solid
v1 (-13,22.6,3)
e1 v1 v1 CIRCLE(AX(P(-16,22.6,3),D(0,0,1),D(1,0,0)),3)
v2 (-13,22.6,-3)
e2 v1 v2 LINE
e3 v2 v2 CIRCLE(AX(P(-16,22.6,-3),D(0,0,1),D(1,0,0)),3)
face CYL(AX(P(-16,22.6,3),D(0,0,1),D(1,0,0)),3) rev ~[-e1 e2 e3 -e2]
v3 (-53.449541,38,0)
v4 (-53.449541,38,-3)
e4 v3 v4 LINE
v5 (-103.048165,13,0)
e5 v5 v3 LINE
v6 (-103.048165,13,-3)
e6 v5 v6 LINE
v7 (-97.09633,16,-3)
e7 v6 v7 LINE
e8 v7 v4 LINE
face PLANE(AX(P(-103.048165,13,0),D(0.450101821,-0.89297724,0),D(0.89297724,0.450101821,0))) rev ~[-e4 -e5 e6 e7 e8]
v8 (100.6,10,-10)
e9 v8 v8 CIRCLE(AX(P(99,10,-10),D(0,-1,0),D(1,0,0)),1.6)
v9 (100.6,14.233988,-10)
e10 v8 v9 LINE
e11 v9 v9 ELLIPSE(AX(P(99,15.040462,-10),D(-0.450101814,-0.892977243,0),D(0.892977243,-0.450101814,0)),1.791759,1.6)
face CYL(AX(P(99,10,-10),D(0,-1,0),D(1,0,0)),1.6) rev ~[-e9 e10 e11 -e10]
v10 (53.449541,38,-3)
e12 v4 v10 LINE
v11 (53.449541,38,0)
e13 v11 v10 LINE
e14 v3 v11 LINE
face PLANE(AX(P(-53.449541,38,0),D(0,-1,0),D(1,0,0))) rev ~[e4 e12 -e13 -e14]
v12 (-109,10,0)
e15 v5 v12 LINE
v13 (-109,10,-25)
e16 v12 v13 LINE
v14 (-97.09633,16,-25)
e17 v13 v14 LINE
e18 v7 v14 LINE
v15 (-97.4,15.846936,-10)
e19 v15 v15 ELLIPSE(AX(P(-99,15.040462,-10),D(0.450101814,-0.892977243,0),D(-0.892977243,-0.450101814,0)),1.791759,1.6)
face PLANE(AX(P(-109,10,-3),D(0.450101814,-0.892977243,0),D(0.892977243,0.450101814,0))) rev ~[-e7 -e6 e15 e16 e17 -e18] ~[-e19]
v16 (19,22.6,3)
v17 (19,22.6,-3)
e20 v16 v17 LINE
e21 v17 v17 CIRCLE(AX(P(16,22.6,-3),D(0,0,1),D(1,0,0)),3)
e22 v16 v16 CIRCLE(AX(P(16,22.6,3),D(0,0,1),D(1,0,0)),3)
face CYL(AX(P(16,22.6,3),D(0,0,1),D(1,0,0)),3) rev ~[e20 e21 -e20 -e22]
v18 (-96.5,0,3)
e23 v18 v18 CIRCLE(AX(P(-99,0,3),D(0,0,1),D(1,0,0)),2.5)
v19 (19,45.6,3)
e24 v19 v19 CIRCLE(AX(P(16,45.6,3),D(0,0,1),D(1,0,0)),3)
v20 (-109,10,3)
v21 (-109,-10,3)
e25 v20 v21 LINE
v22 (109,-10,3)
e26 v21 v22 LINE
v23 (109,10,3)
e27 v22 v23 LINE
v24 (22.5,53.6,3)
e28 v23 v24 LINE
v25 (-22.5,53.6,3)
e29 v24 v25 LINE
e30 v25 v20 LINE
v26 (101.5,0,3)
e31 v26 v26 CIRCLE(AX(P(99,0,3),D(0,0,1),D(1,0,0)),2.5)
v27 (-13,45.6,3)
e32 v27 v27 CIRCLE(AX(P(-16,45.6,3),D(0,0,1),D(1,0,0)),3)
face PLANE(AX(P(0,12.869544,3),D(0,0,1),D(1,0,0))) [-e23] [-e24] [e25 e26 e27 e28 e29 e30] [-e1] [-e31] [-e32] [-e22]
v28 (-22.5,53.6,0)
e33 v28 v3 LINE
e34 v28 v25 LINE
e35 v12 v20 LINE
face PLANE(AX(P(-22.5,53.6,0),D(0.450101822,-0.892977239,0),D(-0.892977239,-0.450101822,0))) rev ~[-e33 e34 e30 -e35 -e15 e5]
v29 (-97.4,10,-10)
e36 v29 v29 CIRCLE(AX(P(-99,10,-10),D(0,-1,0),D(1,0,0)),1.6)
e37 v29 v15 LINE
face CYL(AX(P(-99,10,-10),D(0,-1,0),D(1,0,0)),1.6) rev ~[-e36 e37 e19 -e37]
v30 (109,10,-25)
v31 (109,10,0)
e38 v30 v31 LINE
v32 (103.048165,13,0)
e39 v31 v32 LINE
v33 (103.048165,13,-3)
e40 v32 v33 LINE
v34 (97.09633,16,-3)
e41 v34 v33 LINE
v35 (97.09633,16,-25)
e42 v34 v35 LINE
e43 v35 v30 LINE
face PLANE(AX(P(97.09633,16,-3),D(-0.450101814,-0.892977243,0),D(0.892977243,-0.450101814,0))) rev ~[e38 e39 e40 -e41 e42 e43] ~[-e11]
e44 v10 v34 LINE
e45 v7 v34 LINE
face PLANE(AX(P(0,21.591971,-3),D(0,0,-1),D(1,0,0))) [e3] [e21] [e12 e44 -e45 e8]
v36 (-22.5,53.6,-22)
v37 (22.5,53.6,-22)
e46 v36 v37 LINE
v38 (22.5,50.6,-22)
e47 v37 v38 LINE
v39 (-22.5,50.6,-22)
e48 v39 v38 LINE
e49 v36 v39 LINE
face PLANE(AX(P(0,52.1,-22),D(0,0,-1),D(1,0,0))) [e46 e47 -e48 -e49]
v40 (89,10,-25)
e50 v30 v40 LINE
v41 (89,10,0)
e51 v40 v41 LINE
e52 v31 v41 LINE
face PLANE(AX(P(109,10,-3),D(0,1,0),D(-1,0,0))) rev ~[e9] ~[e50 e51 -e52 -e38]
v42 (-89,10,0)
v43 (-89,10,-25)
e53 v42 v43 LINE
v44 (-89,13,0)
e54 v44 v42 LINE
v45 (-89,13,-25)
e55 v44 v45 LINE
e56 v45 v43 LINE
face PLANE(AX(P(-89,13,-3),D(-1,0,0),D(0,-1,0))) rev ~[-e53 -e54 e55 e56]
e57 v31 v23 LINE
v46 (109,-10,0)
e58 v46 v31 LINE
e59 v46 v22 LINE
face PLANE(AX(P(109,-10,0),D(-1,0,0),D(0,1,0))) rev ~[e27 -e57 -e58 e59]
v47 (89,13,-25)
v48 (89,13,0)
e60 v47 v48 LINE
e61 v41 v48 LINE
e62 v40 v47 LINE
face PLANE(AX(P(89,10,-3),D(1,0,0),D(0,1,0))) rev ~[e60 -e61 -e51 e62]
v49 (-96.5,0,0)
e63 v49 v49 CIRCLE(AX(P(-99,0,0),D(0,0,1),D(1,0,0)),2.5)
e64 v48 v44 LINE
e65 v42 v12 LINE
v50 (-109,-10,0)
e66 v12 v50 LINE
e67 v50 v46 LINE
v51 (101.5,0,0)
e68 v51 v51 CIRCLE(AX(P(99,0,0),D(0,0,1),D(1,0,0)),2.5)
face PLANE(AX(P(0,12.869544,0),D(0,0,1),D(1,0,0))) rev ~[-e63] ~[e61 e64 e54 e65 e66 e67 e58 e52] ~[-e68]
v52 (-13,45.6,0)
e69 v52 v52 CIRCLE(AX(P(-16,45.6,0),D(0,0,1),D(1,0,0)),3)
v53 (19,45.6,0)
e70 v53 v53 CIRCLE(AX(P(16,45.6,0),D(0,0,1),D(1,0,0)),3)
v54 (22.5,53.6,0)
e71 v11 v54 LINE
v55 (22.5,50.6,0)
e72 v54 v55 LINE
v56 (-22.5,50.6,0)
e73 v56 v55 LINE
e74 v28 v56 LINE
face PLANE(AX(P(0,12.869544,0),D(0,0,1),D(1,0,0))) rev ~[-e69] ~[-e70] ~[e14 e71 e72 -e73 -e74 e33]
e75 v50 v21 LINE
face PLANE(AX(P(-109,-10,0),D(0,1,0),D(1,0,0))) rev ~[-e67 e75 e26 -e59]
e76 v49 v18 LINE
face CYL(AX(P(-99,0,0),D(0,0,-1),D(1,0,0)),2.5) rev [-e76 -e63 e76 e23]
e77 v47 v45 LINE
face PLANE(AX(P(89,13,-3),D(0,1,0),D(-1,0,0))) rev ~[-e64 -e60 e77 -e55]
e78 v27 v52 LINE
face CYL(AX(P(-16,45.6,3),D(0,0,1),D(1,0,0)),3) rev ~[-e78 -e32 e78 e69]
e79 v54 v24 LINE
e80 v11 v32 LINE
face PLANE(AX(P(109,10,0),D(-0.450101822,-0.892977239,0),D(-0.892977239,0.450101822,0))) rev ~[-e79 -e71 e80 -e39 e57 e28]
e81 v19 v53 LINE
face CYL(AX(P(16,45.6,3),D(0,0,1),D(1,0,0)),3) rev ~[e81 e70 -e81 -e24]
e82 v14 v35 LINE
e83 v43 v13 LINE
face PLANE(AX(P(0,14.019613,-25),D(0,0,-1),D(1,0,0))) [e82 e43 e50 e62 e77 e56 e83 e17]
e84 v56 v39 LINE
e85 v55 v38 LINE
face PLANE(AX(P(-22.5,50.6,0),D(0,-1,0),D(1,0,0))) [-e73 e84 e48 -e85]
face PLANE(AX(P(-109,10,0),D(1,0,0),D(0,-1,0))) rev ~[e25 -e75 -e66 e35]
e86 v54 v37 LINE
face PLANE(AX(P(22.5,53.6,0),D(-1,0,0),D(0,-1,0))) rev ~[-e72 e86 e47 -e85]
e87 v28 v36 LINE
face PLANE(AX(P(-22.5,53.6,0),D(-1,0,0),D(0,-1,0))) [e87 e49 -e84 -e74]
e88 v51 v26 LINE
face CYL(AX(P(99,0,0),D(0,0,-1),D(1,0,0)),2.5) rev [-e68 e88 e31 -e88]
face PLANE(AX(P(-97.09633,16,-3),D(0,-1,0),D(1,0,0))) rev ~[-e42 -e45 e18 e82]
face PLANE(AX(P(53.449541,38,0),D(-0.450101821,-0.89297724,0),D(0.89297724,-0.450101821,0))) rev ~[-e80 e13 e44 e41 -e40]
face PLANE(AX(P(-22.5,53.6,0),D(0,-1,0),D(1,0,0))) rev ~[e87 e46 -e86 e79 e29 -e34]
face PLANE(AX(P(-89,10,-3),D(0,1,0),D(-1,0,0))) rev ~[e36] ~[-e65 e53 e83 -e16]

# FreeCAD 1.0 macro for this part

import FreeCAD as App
import Part
import Sketcher
from FreeCAD import Vector


def add_polygon(sketch, points):
    """Adds a closed chain of lines whose ends are joined by coincident constraints."""
    first, n = sketch.GeometryCount, len(points)
    for a, b in zip(points, points[1:] + points[:1]):
        sketch.addGeometry(Part.LineSegment(App.Vector(*a, 0), App.Vector(*b, 0)), False)
    for i in range(n):
        sketch.addConstraint(Sketcher.Constraint("Coincident", first + i, 2, first + (i + 1) % n, 1))

doc = App.newDocument("Part")
params = doc.addObject("Spreadsheet::Sheet", "Params")
for row, (alias, value) in enumerate([
    ("sketch1_diameter", "5 mm"),
    ("sketch1_width", "45 mm"),
    ("sketch1_width2", "218 mm"),
    ("sketch1_height", "20 mm"),
    ("pad1_length", "3 mm"),
    ("sketch2_width", "45 mm"),
    ("sketch2_height", "3 mm"),
    ("pad2_length", "22 mm"),
    ("sketch3_width", "178 mm"),
    ("sketch3_width2", "20 mm"),
    ("sketch3_height", "3 mm"),
    ("pad3_length", "3 mm"),
    ("sketch4_width", "178 mm"),
    ("sketch4_width2", "20 mm"),
    ("sketch4_height", "3 mm"),
    ("pad4_length", "22 mm"),
    ("sketch5_diameter", "3.2 mm"),
    ("pocket1_length", "6 mm"),
    ("sketch6_diameter", "6 mm"),
    ("pocket2_length", "25 mm"),
    ("sketch7_diameter", "6 mm"),
    ("pocket3_length", "30 mm"),
], start=1):
    params.set(f"A{row}", alias)
    params.set(f"B{row}", "=" + value)
    params.setAlias(f"B{row}", alias)

body = doc.addObject("PartDesign::Body", "Body")

# Sketch on XY plane
sketch1 = body.newObject("Sketcher::SketchObject", "Sketch")
sketch1.AttachmentSupport = (doc.getObject("XY_Plane"), [""])
sketch1.MapMode = "FlatFace"
add_polygon(sketch1, [(109, -10), (109, 10), (22.5, 53.6), (-22.5, 53.6), (-109, 10), (-109, -10)])  # lines 0-5
sketch1.addGeometry(Part.Circle(Vector(-99, 0, 0), Vector(0, 0, 1), 2.5), False)  # 6
sketch1.addGeometry(Part.Circle(Vector(99, 0, 0), Vector(0, 0, 1), 2.5), False)  # 7
sketch1.addConstraint([
    Sketcher.Constraint("Vertical", 0),
    Sketcher.Constraint("Horizontal", 2),
    Sketcher.Constraint("Vertical", 4),
    Sketcher.Constraint("Horizontal", 5),
    Sketcher.Constraint("Equal", 6, 7),
    Sketcher.Constraint("Symmetric", 6, 3, 7, 3, -1, 1),
    Sketcher.Constraint("Symmetric", 0, 2, 4, 2, -1, 1),
    Sketcher.Constraint("PointOnObject", 6, 3, -1),
    Sketcher.Constraint("Horizontal", 0, 2, 3, 2),
    Sketcher.Constraint("Equal", 1, 3),
    Sketcher.Constraint("Diameter", 6, 5.0),
    Sketcher.Constraint("DistanceX", 2, 2, 2, 1, 45.0),
    Sketcher.Constraint("DistanceX", 5, 1, 5, 2, 218.0),
    Sketcher.Constraint("DistanceY", 0, 1, 0, 2, 20.0),
    Sketcher.Constraint("DistanceX", 6, 3, -1, 1, 99.0),
    Sketcher.Constraint("DistanceY", -1, 1, 1, 2, 53.6),
])
sketch1.setExpression("Constraints[16]", "Params.sketch1_diameter")
sketch1.setExpression("Constraints[17]", "Params.sketch1_width")
sketch1.setExpression("Constraints[18]", "Params.sketch1_width2")
sketch1.setExpression("Constraints[19]", "Params.sketch1_height")
pad1 = body.newObject("PartDesign::Pad", "Pad")
pad1.Profile = sketch1
pad1.setExpression("Length", "Params.pad1_length")

# Sketch on XY plane
sketch2 = body.newObject("Sketcher::SketchObject", "Sketch001")
sketch2.AttachmentSupport = (doc.getObject("XY_Plane"), [""])
sketch2.MapMode = "FlatFace"
add_polygon(sketch2, [(-22.5, 50.6), (-22.5, 53.6), (22.5, 53.6), (22.5, 50.6)])  # lines 0-3
sketch2.addConstraint([
    Sketcher.Constraint("Vertical", 0),
    Sketcher.Constraint("Horizontal", 1),
    Sketcher.Constraint("Vertical", 2),
    Sketcher.Constraint("Horizontal", 3),
    Sketcher.Constraint("DistanceX", 1, 1, 1, 2, 45.0),
    Sketcher.Constraint("DistanceY", 0, 1, 0, 2, 3.0),
    Sketcher.Constraint("DistanceX", 0, 2, -1, 1, 22.5),
    Sketcher.Constraint("DistanceY", -1, 1, 0, 2, 53.6),
])
sketch2.setExpression("Constraints[8]", "Params.sketch2_width")
sketch2.setExpression("Constraints[9]", "Params.sketch2_height")
pad2 = body.newObject("PartDesign::Pad", "Pad001")
pad2.Profile = sketch2
pad2.setExpression("Length", "Params.pad2_length")
pad2.Reversed = True

# Sketch on XY plane
sketch3 = body.newObject("Sketcher::SketchObject", "Sketch002")
sketch3.AttachmentSupport = (doc.getObject("XY_Plane"), [""])
sketch3.MapMode = "FlatFace"
add_polygon(sketch3, [(89, 13), (-89, 13), (-89, 10), (-109, 10), (-103, 13), (-53.4, 38), (53.4, 38), (103, 13), (109, 10), (89, 10)])  # lines 0-9
sketch3.addConstraint([
    Sketcher.Constraint("Horizontal", 0),
    Sketcher.Constraint("Vertical", 1),
    Sketcher.Constraint("Horizontal", 2),
    Sketcher.Constraint("Horizontal", 5),
    Sketcher.Constraint("Horizontal", 8),
    Sketcher.Constraint("Vertical", 9),
    Sketcher.Constraint("Symmetric", 3, 2, 6, 2, -2),
    Sketcher.Constraint("Symmetric", 2, 2, 7, 2, -2),
    Sketcher.Constraint("Parallel", 3, 4),
    Sketcher.Constraint("Parallel", 6, 7),
    Sketcher.Constraint("Horizontal", 0, 2, 3, 2),
    Sketcher.Constraint("Equal", 2, 8),
    Sketcher.Constraint("DistanceX", 0, 2, 0, 1, 178.0),
    Sketcher.Constraint("DistanceX", 2, 2, 2, 1, 20.0),
    Sketcher.Constraint("DistanceY", 1, 2, 1, 1, 3.0),
    Sketcher.Constraint("DistanceY", -1, 1, 0, 2, 13.0),
    Sketcher.Constraint("DistanceY", -1, 1, 4, 2, 38.0),
    Sketcher.Constraint("Distance", 3, 6.665159),
])
sketch3.setExpression("Constraints[22]", "Params.sketch3_width")
sketch3.setExpression("Constraints[23]", "Params.sketch3_width2")
sketch3.setExpression("Constraints[24]", "Params.sketch3_height")
pad3 = body.newObject("PartDesign::Pad", "Pad002")
pad3.Profile = sketch3
pad3.setExpression("Length", "Params.pad3_length")
pad3.Reversed = True

# Sketch on XY plane
sketch4 = body.newObject("Sketcher::SketchObject", "Sketch003")
sketch4.AttachmentSupport = (doc.getObject("XY_Plane"), [""])
sketch4.MapMode = "FlatFace"
sketch4.AttachmentOffset = App.Placement(Vector(0, 0, -3), App.Rotation())
add_polygon(sketch4, [(89, 13), (-89, 13), (-89, 10), (-109, 10), (-97.1, 16), (97.1, 16), (109, 10), (89, 10)])  # lines 0-7
sketch4.addConstraint([
    Sketcher.Constraint("Horizontal", 0),
    Sketcher.Constraint("Vertical", 1),
    Sketcher.Constraint("Horizontal", 2),
    Sketcher.Constraint("Horizontal", 4),
    Sketcher.Constraint("Horizontal", 6),
    Sketcher.Constraint("Vertical", 7),
    Sketcher.Constraint("Symmetric", 2, 2, 5, 2, -2),
    Sketcher.Constraint("Equal", 2, 6),
    Sketcher.Constraint("Equal", 3, 5),
    Sketcher.Constraint("DistanceX", 0, 2, 0, 1, 178.0),
    Sketcher.Constraint("DistanceX", 2, 2, 2, 1, 20.0),
    Sketcher.Constraint("DistanceY", 1, 2, 1, 1, 3.0),
    Sketcher.Constraint("DistanceY", -1, 1, 0, 2, 13.0),
    Sketcher.Constraint("DistanceY", -1, 1, 3, 2, 16.0),
    Sketcher.Constraint("DistanceX", 4, 1, 4, 2, 194.19266),
])
sketch4.setExpression("Constraints[17]", "Params.sketch4_width")
sketch4.setExpression("Constraints[18]", "Params.sketch4_width2")
sketch4.setExpression("Constraints[19]", "Params.sketch4_height")
pad4 = body.newObject("PartDesign::Pad", "Pad003")
pad4.Profile = sketch4
pad4.setExpression("Length", "Params.pad4_length")
pad4.Reversed = True

# Sketch on XZ plane
sketch5 = body.newObject("Sketcher::SketchObject", "Sketch004")
sketch5.AttachmentSupport = (doc.getObject("XZ_Plane"), [""])
sketch5.MapMode = "FlatFace"
sketch5.AttachmentOffset = App.Placement(Vector(0, 0, -10), App.Rotation())
sketch5.addGeometry([
    Part.Circle(Vector(-99, -10, 0), Vector(0, 0, 1), 1.6),
    Part.Circle(Vector(99, -10, 0), Vector(0, 0, 1), 1.6),
], False)
sketch5.addConstraint([
    Sketcher.Constraint("Equal", 0, 1),
    Sketcher.Constraint("Symmetric", 0, 3, 1, 3, -2),
    Sketcher.Constraint("Diameter", 0, 3.2),
    Sketcher.Constraint("DistanceX", 0, 3, -1, 1, 99.0),
    Sketcher.Constraint("DistanceY", 0, 3, -1, 1, 10.0),
])
sketch5.setExpression("Constraints[2]", "Params.sketch5_diameter")
pocket1 = body.newObject("PartDesign::Pocket", "Pocket")
pocket1.Profile = sketch5
pocket1.setExpression("Length", "Params.pocket1_length")

# Sketch on XY plane
sketch6 = body.newObject("Sketcher::SketchObject", "Sketch005")
sketch6.AttachmentSupport = (doc.getObject("XY_Plane"), [""])
sketch6.MapMode = "FlatFace"
sketch6.AttachmentOffset = App.Placement(Vector(0, 0, 3), App.Rotation())
sketch6.addGeometry([
    Part.Circle(Vector(-16, 45.6, 0), Vector(0, 0, 1), 3),
    Part.Circle(Vector(-16, 22.6, 0), Vector(0, 0, 1), 3),
    Part.Circle(Vector(16, 22.6, 0), Vector(0, 0, 1), 3),
    Part.Circle(Vector(16, 45.6, 0), Vector(0, 0, 1), 3),
], False)
sketch6.addConstraint([
    Sketcher.Constraint("Equal", 0, 1),
    Sketcher.Constraint("Equal", 1, 2),
    Sketcher.Constraint("Equal", 2, 3),
    Sketcher.Constraint("Symmetric", 1, 3, 2, 3, -2),
    Sketcher.Constraint("Symmetric", 0, 3, 3, 3, -2),
    Sketcher.Constraint("Vertical", 0, 3, 1, 3),
    Sketcher.Constraint("Diameter", 0, 6.0),
    Sketcher.Constraint("DistanceX", 0, 3, -1, 1, 16.0),
    Sketcher.Constraint("DistanceY", 1, 3, 0, 3, 23.0),
    Sketcher.Constraint("DistanceY", -1, 1, 0, 3, 45.6),
])
sketch6.setExpression("Constraints[6]", "Params.sketch6_diameter")
pocket2 = body.newObject("PartDesign::Pocket", "Pocket001")
pocket2.Profile = sketch6
pocket2.setExpression("Length", "Params.pocket2_length")

# Sketch on XY plane
sketch7 = body.newObject("Sketcher::SketchObject", "Sketch006")
sketch7.AttachmentSupport = (doc.getObject("XY_Plane"), [""])
sketch7.MapMode = "FlatFace"
sketch7.AttachmentOffset = App.Placement(Vector(0, 0, 3), App.Rotation())
sketch7.addGeometry([
    Part.Circle(Vector(-16, 45.6, 0), Vector(0, 0, 1), 3),
    Part.Circle(Vector(-16, 22.6, 0), Vector(0, 0, 1), 3),
    Part.Circle(Vector(16, 22.6, 0), Vector(0, 0, 1), 3),
    Part.Circle(Vector(16, 45.6, 0), Vector(0, 0, 1), 3),
], False)
sketch7.addConstraint([
    Sketcher.Constraint("Equal", 0, 1),
    Sketcher.Constraint("Equal", 1, 2),
    Sketcher.Constraint("Equal", 2, 3),
    Sketcher.Constraint("Symmetric", 1, 3, 2, 3, -2),
    Sketcher.Constraint("Symmetric", 0, 3, 3, 3, -2),
    Sketcher.Constraint("Vertical", 0, 3, 1, 3),
    Sketcher.Constraint("Diameter", 0, 6.0),
    Sketcher.Constraint("DistanceX", 0, 3, -1, 1, 16.0),
    Sketcher.Constraint("DistanceY", 1, 3, 0, 3, 23.0),
    Sketcher.Constraint("DistanceY", -1, 1, 0, 3, 45.6),
])
sketch7.setExpression("Constraints[6]", "Params.sketch7_diameter")
pocket3 = body.newObject("PartDesign::Pocket", "Pocket002")
pocket3.Profile = sketch7
pocket3.setExpression("Length", "Params.pocket3_length")

doc.recompute()
